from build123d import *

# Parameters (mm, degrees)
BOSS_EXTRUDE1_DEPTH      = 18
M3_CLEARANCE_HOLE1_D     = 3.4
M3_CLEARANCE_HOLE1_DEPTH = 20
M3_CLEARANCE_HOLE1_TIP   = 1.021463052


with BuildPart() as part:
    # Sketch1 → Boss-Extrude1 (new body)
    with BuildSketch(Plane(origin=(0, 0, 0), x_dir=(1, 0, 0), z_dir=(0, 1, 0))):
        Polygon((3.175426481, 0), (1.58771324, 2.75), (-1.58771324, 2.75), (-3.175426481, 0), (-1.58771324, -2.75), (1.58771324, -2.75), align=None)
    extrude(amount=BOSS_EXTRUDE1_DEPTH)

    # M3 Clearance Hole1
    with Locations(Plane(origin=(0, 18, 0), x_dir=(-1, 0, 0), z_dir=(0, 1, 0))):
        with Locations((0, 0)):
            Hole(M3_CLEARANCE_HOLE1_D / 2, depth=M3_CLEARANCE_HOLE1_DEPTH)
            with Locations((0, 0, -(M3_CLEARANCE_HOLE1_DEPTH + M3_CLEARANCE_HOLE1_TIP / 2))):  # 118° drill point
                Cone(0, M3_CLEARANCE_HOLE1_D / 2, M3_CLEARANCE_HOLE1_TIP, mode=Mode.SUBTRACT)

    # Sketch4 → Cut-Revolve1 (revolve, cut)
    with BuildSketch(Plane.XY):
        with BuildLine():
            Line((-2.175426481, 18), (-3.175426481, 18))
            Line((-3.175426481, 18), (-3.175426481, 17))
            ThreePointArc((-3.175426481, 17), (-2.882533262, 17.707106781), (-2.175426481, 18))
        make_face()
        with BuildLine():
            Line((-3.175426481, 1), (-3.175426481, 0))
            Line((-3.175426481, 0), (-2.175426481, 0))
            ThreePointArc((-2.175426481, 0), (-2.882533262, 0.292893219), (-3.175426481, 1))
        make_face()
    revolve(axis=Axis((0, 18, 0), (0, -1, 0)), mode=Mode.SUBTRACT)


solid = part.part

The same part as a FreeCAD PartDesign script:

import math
import FreeCAD as App
import Part
import Sketcher
from FreeCAD import Vector
Q = App.Units.Quantity

doc = App.newDocument("Part")
body = doc.addObject("PartDesign::Body", "Body")

# Sketch on XZ plane
sketch1 = body.newObject("Sketcher::SketchObject", "Sketch")
sketch1.AttachmentSupport = (doc.getObject("XZ_Plane"), [""])
sketch1.MapMode = "FlatFace"
sketch1.addGeometry([
    Part.LineSegment(Vector(3.2, 0, 0), Vector(1.6, -2.8, 0)),  # 0
    Part.LineSegment(Vector(1.6, -2.8, 0), Vector(-1.6, -2.8, 0)),  # 1
    Part.LineSegment(Vector(-1.6, -2.8, 0), Vector(-3.2, 0, 0)),  # 2
    Part.LineSegment(Vector(-3.2, 0, 0), Vector(-1.6, 2.8, 0)),  # 3
    Part.LineSegment(Vector(-1.6, 2.8, 0), Vector(1.6, 2.8, 0)),  # 4
    Part.LineSegment(Vector(1.6, 2.8, 0), Vector(3.2, 0, 0)),  # 5
], False)
sketch1.addConstraint([
    Sketcher.Constraint("Coincident", 0, 2, 1, 1),
    Sketcher.Constraint("Coincident", 1, 2, 2, 1),
    Sketcher.Constraint("Coincident", 2, 2, 3, 1),
    Sketcher.Constraint("Coincident", 3, 2, 4, 1),
    Sketcher.Constraint("Coincident", 4, 2, 5, 1),
    Sketcher.Constraint("Coincident", 5, 2, 0, 1),
    Sketcher.Constraint("Horizontal", 1),
    Sketcher.Constraint("Horizontal", 4),
    Sketcher.Constraint("Symmetric", 0, 2, 3, 2, -1, 1),
    Sketcher.Constraint("Symmetric", 2, 2, 5, 2, -1, 1),
    Sketcher.Constraint("PointOnObject", 2, 2, -1),
    Sketcher.Constraint("Parallel", 2, 5),
    Sketcher.Constraint("Vertical", 1, 2, 3, 2),
    Sketcher.Constraint("Angle", 0, Q("-120 deg")),
    Sketcher.Constraint("DistanceY", 1, 2, 3, 2, Q("5.5 mm")),
    Sketcher.Constraint("DistanceX", 1, 2, 1, 1, Q("3.175426 mm")),
])
pad1 = body.newObject("PartDesign::Pad", "Pad")
pad1.Profile = sketch1
pad1.Length = 18
pad1.Reversed = True

# Sketch on XZ plane
sketch2 = body.newObject("Sketcher::SketchObject", "Sketch001")
sketch2.AttachmentSupport = (doc.getObject("XZ_Plane"), [""])
sketch2.MapMode = "FlatFace"
sketch2.AttachmentOffset = App.Placement(Vector(0, 0, -18), App.Rotation())
sketch2.addGeometry(Part.Circle(Vector(0, 0, 0), Vector(0, 0, 1), 1.7), False)
sketch2.addConstraint([
    Sketcher.Constraint("Coincident", 0, 3, -1, 1),
    Sketcher.Constraint("Diameter", 0, Q("3.4 mm")),
])
doc.recompute()
hole = body.newObject("PartDesign::Hole", "Hole")
hole.Profile = sketch2
hole.ThreadType = "None"
hole.Diameter = 3.4
hole.DepthType = "Dimension"
hole.Depth = 20
hole.DrillPoint = "Angled"
hole.DrillPointAngle = 118
hole.Reversed = True

# Sketch on XY plane
sketch3 = body.newObject("Sketcher::SketchObject", "Sketch002")
sketch3.AttachmentSupport = (doc.getObject("XY_Plane"), [""])
sketch3.MapMode = "FlatFace"
sketch3.addGeometry([
    Part.LineSegment(Vector(-2.2, 18, 0), Vector(-3.2, 18, 0)),  # 0
    Part.LineSegment(Vector(-3.2, 18, 0), Vector(-3.2, 17, 0)),  # 1
    Part.ArcOfCircle(Part.Circle(Vector(-2.2, 17, 0), Vector(0, 0, 1), 1), math.radians(90), math.radians(180)),  # 2
    Part.LineSegment(Vector(-3.2, 1, 0), Vector(-3.2, 0, 0)),  # 3
    Part.LineSegment(Vector(-3.2, 0, 0), Vector(-2.2, 0, 0)),  # 4
    Part.ArcOfCircle(Part.Circle(Vector(-2.2, 1, 0), Vector(0, 0, 1), 1), math.radians(-180), math.radians(-90)),  # 5
], False)
sketch3.addConstraint([
    Sketcher.Constraint("Coincident", 0, 2, 1, 1),
    Sketcher.Constraint("Tangent", 1, 2, 2, 2),
    Sketcher.Constraint("Tangent", 2, 1, 0, 1),
    Sketcher.Constraint("Coincident", 3, 2, 4, 1),
    Sketcher.Constraint("Tangent", 4, 2, 5, 2),
    Sketcher.Constraint("Tangent", 5, 1, 3, 1),
    Sketcher.Constraint("Horizontal", 0),
    Sketcher.Constraint("Vertical", 1),
    Sketcher.Constraint("Vertical", 3),
    Sketcher.Constraint("Horizontal", 4),
    Sketcher.Constraint("Equal", 2, 5),
    Sketcher.Constraint("PointOnObject", 3, 2, -1),
    Sketcher.Constraint("Vertical", 2, 3, 5, 3),
    Sketcher.Constraint("Radius", 2, Q("1 mm")),
    Sketcher.Constraint("DistanceY", -1, 1, 2, 3, Q("17 mm")),
    Sketcher.Constraint("DistanceX", 2, 3, -1, 1, Q("2.175426 mm")),
])
groove = body.newObject("PartDesign::Groove", "Groove")
groove.Profile = sketch3
groove.ReferenceAxis = (sketch3, ["V_Axis"])
groove.Angle = 360

doc.recompute()
